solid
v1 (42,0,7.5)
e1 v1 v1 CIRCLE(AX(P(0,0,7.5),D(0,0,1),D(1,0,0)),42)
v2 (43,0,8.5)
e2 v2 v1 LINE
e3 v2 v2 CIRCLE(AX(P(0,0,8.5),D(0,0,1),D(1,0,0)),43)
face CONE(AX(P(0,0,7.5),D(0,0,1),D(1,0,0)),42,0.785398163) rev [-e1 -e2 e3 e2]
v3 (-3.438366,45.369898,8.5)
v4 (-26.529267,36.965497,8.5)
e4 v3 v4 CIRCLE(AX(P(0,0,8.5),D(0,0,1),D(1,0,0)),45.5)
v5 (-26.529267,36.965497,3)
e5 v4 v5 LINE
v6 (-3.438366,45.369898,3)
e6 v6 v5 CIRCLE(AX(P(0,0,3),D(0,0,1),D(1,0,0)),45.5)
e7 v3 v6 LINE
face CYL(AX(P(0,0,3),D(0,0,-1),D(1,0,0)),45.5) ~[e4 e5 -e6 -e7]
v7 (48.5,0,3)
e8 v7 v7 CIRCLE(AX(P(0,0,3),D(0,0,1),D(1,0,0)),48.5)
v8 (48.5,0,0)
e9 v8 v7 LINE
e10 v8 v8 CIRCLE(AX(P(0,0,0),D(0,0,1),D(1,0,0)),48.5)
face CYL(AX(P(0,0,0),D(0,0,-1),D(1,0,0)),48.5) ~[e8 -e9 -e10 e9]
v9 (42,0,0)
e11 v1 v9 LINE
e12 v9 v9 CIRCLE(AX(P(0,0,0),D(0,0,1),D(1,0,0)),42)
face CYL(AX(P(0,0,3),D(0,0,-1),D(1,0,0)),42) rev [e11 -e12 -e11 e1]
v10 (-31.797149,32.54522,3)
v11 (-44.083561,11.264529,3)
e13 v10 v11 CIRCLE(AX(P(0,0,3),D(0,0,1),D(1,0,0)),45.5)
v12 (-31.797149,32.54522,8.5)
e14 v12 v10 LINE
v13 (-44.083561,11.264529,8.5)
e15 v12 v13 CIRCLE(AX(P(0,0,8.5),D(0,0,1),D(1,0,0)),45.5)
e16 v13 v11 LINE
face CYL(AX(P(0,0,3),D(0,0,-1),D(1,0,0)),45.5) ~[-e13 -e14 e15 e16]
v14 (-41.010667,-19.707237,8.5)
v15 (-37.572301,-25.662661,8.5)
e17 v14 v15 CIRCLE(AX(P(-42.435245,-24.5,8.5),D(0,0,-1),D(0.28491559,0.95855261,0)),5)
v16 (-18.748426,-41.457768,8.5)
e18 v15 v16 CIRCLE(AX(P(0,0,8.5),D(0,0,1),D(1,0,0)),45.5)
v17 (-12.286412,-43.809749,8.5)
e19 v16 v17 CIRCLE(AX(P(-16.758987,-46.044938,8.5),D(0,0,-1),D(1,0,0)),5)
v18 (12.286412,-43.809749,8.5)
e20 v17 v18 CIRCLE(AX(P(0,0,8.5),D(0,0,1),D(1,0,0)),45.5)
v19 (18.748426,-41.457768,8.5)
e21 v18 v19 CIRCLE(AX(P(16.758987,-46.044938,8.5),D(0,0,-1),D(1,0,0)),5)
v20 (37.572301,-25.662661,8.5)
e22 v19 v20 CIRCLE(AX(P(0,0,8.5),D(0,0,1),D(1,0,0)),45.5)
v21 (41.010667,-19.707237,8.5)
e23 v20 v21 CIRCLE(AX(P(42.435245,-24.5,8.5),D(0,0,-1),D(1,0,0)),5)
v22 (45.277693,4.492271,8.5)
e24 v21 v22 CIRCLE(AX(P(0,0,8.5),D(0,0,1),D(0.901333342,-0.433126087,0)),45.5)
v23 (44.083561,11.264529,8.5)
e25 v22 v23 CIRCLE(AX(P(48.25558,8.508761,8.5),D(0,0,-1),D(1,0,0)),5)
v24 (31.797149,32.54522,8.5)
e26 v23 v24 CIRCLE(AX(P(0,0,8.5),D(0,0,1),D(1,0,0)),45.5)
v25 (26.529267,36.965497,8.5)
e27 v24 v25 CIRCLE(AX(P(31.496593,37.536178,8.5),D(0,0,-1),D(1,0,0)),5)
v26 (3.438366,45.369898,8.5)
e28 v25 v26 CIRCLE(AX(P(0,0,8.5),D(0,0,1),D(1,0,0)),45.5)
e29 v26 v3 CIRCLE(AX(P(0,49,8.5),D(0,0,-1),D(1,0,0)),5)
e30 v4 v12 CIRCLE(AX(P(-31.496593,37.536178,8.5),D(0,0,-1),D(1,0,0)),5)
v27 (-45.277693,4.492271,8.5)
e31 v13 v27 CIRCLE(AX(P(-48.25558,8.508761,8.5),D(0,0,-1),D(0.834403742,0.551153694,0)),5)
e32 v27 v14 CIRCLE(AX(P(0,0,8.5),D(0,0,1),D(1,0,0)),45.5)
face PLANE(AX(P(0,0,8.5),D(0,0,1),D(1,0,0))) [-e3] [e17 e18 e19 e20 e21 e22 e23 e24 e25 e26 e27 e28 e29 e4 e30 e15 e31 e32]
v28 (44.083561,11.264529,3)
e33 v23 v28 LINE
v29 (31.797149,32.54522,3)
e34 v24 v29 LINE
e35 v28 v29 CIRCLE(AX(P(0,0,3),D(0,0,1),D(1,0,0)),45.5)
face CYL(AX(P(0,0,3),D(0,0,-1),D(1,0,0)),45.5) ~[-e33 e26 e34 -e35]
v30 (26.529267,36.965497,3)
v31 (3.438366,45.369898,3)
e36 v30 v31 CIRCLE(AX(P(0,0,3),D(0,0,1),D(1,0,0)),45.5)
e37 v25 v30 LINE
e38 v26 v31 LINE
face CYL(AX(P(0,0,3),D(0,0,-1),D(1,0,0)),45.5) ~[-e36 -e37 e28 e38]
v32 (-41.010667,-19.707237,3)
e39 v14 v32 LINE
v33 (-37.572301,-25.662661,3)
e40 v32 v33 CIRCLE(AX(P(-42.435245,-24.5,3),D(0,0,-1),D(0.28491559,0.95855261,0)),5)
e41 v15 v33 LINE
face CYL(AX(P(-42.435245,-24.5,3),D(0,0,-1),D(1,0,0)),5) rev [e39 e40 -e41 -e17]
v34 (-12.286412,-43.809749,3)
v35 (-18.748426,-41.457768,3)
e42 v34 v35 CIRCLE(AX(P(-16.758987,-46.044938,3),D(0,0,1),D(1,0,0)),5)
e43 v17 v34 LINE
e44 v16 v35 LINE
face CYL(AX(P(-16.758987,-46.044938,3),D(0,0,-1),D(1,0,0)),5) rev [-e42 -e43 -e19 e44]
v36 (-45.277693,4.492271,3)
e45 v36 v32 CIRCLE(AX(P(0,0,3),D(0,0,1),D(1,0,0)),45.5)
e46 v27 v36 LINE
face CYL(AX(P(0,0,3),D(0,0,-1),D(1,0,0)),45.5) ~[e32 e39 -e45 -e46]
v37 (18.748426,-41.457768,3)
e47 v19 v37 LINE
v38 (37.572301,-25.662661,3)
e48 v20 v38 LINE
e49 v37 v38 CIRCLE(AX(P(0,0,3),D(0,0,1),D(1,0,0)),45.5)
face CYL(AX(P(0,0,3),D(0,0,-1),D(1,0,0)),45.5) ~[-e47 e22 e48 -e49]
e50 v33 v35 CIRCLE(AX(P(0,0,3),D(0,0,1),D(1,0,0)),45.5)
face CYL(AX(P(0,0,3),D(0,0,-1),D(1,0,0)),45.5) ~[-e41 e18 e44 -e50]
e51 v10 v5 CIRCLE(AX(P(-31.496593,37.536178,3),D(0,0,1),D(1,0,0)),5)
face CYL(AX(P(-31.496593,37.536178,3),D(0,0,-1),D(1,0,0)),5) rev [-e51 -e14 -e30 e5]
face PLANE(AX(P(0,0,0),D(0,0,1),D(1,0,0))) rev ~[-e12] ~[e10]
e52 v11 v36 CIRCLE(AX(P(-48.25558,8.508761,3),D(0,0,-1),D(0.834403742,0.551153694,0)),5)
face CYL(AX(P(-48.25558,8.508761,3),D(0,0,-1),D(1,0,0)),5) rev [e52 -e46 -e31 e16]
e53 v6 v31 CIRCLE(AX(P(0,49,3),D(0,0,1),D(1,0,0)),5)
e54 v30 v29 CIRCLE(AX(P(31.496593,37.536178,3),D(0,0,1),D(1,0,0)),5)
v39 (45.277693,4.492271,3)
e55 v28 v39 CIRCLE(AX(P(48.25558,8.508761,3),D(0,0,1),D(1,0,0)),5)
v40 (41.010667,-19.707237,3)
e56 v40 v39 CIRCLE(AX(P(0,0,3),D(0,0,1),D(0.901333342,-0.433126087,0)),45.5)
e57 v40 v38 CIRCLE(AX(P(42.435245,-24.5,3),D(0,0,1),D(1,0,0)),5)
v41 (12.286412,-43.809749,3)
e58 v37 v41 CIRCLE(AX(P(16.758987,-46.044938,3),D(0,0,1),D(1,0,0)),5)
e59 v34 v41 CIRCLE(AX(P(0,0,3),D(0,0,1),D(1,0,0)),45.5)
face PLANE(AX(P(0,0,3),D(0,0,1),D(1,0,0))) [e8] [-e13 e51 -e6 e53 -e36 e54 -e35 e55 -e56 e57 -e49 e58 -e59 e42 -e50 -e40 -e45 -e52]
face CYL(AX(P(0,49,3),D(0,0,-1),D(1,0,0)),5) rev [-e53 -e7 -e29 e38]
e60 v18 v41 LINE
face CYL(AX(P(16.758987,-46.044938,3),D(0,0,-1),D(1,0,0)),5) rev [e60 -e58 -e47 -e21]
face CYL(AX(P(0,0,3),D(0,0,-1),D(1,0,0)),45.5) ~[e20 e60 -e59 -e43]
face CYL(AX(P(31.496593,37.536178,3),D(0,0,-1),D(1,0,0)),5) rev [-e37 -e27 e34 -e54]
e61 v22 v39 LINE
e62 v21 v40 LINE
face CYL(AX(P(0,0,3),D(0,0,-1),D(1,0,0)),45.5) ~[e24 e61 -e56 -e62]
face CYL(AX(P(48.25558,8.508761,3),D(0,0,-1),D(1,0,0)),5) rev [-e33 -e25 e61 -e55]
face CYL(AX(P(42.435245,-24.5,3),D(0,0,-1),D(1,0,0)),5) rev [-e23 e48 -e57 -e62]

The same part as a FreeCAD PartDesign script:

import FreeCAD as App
import Part
import Sketcher

V = App.Vector


def edges_at(feature, points):
    """Names of the edges that pass closest to the given points."""
    edges = feature.Shape.Edges
    near = lambda p: min(range(len(edges)), key=lambda i: edges[i].distToShape(Part.Vertex(*p))[0])
    return sorted({f"Edge{near(p) + 1}" for p in points})

doc = App.newDocument("Part")
body = doc.addObject("PartDesign::Body", "Body")

# Sketch on XY plane
sketch1 = body.newObject("Sketcher::SketchObject", "Sketch")
sketch1.AttachmentSupport = (doc.getObject("XY_Plane"), [""])
sketch1.MapMode = "FlatFace"
sketch1.addGeometry(Part.Circle(V(0, 0, 0), V(0, 0, 1), 48), False)
sketch1.addGeometry(Part.Circle(V(0, 0, 0), V(0, 0, 1), 42), False)
sketch1.addConstraint(Sketcher.Constraint("Coincident", 0, 3, -1, 1))
sketch1.addConstraint(Sketcher.Constraint("Coincident", 1, 3, -1, 1))
sketch1.addConstraint(Sketcher.Constraint("Diameter", 0, 97.0))
sketch1.addConstraint(Sketcher.Constraint("Diameter", 1, 84.0))
pad1 = body.newObject("PartDesign::Pad", "Pad")
pad1.Profile = sketch1
pad1.Length = 3

# Sketch on XY plane
sketch2 = body.newObject("Sketcher::SketchObject", "Sketch001")
sketch2.AttachmentSupport = (doc.getObject("XY_Plane"), [""])
sketch2.MapMode = "FlatFace"
sketch2.AttachmentOffset = App.Placement(V(0, 0, 3), App.Rotation())
sketch2.addGeometry(Part.Circle(V(0, 0, 0), V(0, 0, 1), 46), False)
sketch2.addGeometry(Part.Circle(V(0, 0, 0), V(0, 0, 1), 42), False)
sketch2.addConstraint(Sketcher.Constraint("Coincident", 0, 3, -1, 1))
sketch2.addConstraint(Sketcher.Constraint("Coincident", 1, 3, -1, 1))
sketch2.addConstraint(Sketcher.Constraint("Diameter", 0, 91.0))
sketch2.addConstraint(Sketcher.Constraint("Diameter", 1, 84.0))
pad2 = body.newObject("PartDesign::Pad", "Pad001")
pad2.Profile = sketch2
pad2.Length = 5.5
doc.recompute()

chamfer = body.newObject("PartDesign::Chamfer", "Chamfer")
chamfer.Base = (pad2, edges_at(pad2, [(-42, 0, 8.5)]))
chamfer.Size = 1

# Sketch on XY plane
sketch3 = body.newObject("Sketcher::SketchObject", "Sketch002")
sketch3.AttachmentSupport = (doc.getObject("XY_Plane"), [""])
sketch3.MapMode = "FlatFace"
sketch3.AttachmentOffset = App.Placement(V(0, 0, 3), App.Rotation())
sketch3.addGeometry(Part.Circle(V(31, 38, 0), V(0, 0, 1), 5), False)
sketch3.addGeometry(Part.Circle(V(48, 9, 0), V(0, 0, 1), 5), False)
sketch3.addGeometry(Part.Circle(V(42, -24, 0), V(0, 0, 1), 5), False)
sketch3.addGeometry(Part.Circle(V(17, -46, 0), V(0, 0, 1), 5), False)
sketch3.addGeometry(Part.Circle(V(-17, -46, 0), V(0, 0, 1), 5), False)
sketch3.addGeometry(Part.Circle(V(-42, -24, 0), V(0, 0, 1), 5), False)
sketch3.addGeometry(Part.Circle(V(-48, 9, 0), V(0, 0, 1), 5), False)
sketch3.addGeometry(Part.Circle(V(-31, 38, 0), V(0, 0, 1), 5), False)
sketch3.addGeometry(Part.Circle(V(0, 49, 0), V(0, 0, 1), 5), False)
sketch3.addConstraint(Sketcher.Constraint("Equal", 0, 1))
sketch3.addConstraint(Sketcher.Constraint("Equal", 1, 2))
sketch3.addConstraint(Sketcher.Constraint("Equal", 2, 3))
sketch3.addConstraint(Sketcher.Constraint("Equal", 3, 4))
sketch3.addConstraint(Sketcher.Constraint("Equal", 4, 5))
sketch3.addConstraint(Sketcher.Constraint("Equal", 5, 6))
sketch3.addConstraint(Sketcher.Constraint("Equal", 6, 7))
sketch3.addConstraint(Sketcher.Constraint("Equal", 7, 8))
sketch3.addConstraint(Sketcher.Constraint("Symmetric", 3, 3, 4, 3, -2))
sketch3.addConstraint(Sketcher.Constraint("Symmetric", 2, 3, 5, 3, -2))
sketch3.addConstraint(Sketcher.Constraint("Symmetric", 1, 3, 6, 3, -2))
sketch3.addConstraint(Sketcher.Constraint("Symmetric", 0, 3, 7, 3, -2))
sketch3.addConstraint(Sketcher.Constraint("PointOnObject", 8, 3, -2))
sketch3.addConstraint(Sketcher.Constraint("Diameter", 0, 10.0))
sketch3.addConstraint(Sketcher.Constraint("DistanceY", -1, 1, 8, 3, 49.0))
sketch3.addConstraint(Sketcher.Constraint("DistanceY", 2, 3, -1, 1, 24.5))
sketch3.addConstraint(Sketcher.Constraint("DistanceY", 3, 3, 1, 3, 54.553699))
sketch3.addConstraint(Sketcher.Constraint("DistanceX", -1, 1, 1, 3, 48.25558))
sketch3.addConstraint(Sketcher.Constraint("DistanceY", -1, 1, 1, 3, 8.508761))
sketch3.addConstraint(Sketcher.Constraint("DistanceX", 3, 3, 2, 3, 25.676258))
sketch3.addConstraint(Sketcher.Constraint("DistanceX", 4, 3, 0, 3, 48.25558))
sketch3.addConstraint(Sketcher.Constraint("DistanceX", 5, 3, 2, 3, 84.87049))
sketch3.addConstraint(Sketcher.Constraint("DistanceY", -1, 1, 0, 3, 37.536178))
pocket1 = body.newObject("PartDesign::Pocket", "Pocket")
pocket1.Profile = sketch3
pocket1.Type = "ThroughAll"
pocket1.Reversed = True

doc.recompute()
